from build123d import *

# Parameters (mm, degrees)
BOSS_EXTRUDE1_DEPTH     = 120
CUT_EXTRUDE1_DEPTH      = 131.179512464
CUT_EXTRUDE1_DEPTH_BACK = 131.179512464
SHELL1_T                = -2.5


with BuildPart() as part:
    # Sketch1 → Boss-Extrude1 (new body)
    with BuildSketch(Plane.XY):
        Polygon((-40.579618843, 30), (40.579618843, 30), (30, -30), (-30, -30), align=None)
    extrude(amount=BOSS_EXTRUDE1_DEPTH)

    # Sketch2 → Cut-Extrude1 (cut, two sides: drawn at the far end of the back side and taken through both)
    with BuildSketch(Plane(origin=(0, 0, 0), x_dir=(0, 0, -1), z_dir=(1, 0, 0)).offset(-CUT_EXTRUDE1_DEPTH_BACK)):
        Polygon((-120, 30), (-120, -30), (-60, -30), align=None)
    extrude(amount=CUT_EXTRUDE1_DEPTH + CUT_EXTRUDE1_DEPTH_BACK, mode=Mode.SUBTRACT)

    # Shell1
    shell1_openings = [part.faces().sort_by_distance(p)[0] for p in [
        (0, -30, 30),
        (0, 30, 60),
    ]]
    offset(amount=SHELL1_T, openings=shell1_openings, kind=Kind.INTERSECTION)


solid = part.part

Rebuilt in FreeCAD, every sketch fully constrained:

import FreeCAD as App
import Part
import Sketcher
Q = App.Units.Quantity


def faces_at(feature, points):
    """Names of the faces that lie closest to the given points."""
    faces = feature.Shape.Faces
    near = lambda p: min(range(len(faces)), key=lambda i: faces[i].distToShape(Part.Vertex(*p))[0])
    return sorted({f"Face{near(p) + 1}" for p in points})

doc = App.newDocument("Part")
body = doc.addObject("PartDesign::Body", "Body")

# Sketch on XY plane
sketch1 = body.newObject("Sketcher::SketchObject", "Sketch")
sketch1.AttachmentSupport = (doc.getObject("XY_Plane"), [""])
sketch1.MapMode = "FlatFace"
sketch1.addGeometry([
    Part.LineSegment(App.Vector(40.579619, 30, 0), App.Vector(-40.579619, 30, 0)),
    Part.LineSegment(App.Vector(-40.579619, 30, 0), App.Vector(-30, -30, 0)),
    Part.LineSegment(App.Vector(-30, -30, 0), App.Vector(30, -30, 0)),
    Part.LineSegment(App.Vector(30, -30, 0), App.Vector(40.579619, 30, 0)),
], False)
sketch1.addConstraint([
    Sketcher.Constraint("Coincident", 0, 2, 1, 1),
    Sketcher.Constraint("Coincident", 1, 2, 2, 1),
    Sketcher.Constraint("Coincident", 2, 2, 3, 1),
    Sketcher.Constraint("Coincident", 3, 2, 0, 1),
    Sketcher.Constraint("Horizontal", 0),
    Sketcher.Constraint("Horizontal", 2),
    Sketcher.Constraint("Equal", 1, 3),
    Sketcher.Constraint("DistanceX", 2, 1, 2, 2, 60.0),
    Sketcher.Constraint("Angle", 1, Q("-80 deg")),
    Sketcher.Constraint("DistanceY", -1, 1, 0, 2, 30.0),
    Sketcher.Constraint("DistanceX", 1, 2, -1, 1, 30.0),
    Sketcher.Constraint("DistanceY", 1, 2, -1, 1, 30.0),
])
pad1 = body.newObject("PartDesign::Pad", "Pad")
pad1.Profile = sketch1
pad1.Length = 120

# Sketch on YZ plane
sketch2 = body.newObject("Sketcher::SketchObject", "Sketch001")
sketch2.AttachmentSupport = (doc.getObject("YZ_Plane"), [""])
sketch2.MapMode = "FlatFace"
sketch2.addGeometry([
    Part.LineSegment(App.Vector(30, 120, 0), App.Vector(-30, 120, 0)),
    Part.LineSegment(App.Vector(-30, 120, 0), App.Vector(-30, 60, 0)),
    Part.LineSegment(App.Vector(-30, 60, 0), App.Vector(30, 120, 0)),
], False)
sketch2.addConstraint([
    Sketcher.Constraint("Coincident", 0, 2, 1, 1),
    Sketcher.Constraint("Coincident", 1, 2, 2, 1),
    Sketcher.Constraint("Coincident", 2, 2, 0, 1),
    Sketcher.Constraint("Horizontal", 0),
    Sketcher.Constraint("Vertical", 1),
    Sketcher.Constraint("Equal", 0, 1),
    Sketcher.Constraint("DistanceX", 0, 2, 0, 1, 60.0),
    Sketcher.Constraint("DistanceX", 0, 2, -1, 1, 30.0),
    Sketcher.Constraint("DistanceY", -1, 1, 0, 2, 120.0),
])
pocket1 = body.newObject("PartDesign::Pocket", "Pocket")
pocket1.Profile = sketch2
pocket1.Type = "ThroughAll"
pocket1.Midplane = True
doc.recompute()

thickness = body.newObject("PartDesign::Thickness", "Thickness")
thickness.Base = (pocket1, faces_at(pocket1, [(0, -30, 30), (0, 30, 60)]))
thickness.Value = 2.5
thickness.Reversed = True
thickness.Join = "Intersection"

doc.recompute()
